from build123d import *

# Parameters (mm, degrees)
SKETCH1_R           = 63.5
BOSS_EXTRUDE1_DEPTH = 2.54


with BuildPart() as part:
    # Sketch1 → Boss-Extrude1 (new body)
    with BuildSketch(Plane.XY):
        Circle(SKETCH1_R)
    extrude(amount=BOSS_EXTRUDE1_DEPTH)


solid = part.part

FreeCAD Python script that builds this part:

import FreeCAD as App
import Part
import Sketcher

V = App.Vector
Q = App.Units.Quantity

doc = App.newDocument("Part")
body = doc.addObject("PartDesign::Body", "Body")

sketch1 = doc.addObject("Sketcher::SketchObject", "Sketch")
body.addObject(sketch1)
sketch1.AttachmentSupport = (doc.XY_Plane, [""])
sketch1.MapMode = "FlatFace"
sketch1.addGeometry(Part.Circle(V(0, 0, 0), V(0, 0, 1), 64), False)
sketch1.addConstraint(Sketcher.Constraint("Coincident", 0, 3, -1, 1))
sketch1.addConstraint(Sketcher.Constraint("Diameter", 0, Q("5 in")))
pad1 = doc.addObject("PartDesign::Pad", "Pad")
body.addObject(pad1)
pad1.Profile = sketch1
pad1.Length = Q("0.1 in")

doc.recompute()
